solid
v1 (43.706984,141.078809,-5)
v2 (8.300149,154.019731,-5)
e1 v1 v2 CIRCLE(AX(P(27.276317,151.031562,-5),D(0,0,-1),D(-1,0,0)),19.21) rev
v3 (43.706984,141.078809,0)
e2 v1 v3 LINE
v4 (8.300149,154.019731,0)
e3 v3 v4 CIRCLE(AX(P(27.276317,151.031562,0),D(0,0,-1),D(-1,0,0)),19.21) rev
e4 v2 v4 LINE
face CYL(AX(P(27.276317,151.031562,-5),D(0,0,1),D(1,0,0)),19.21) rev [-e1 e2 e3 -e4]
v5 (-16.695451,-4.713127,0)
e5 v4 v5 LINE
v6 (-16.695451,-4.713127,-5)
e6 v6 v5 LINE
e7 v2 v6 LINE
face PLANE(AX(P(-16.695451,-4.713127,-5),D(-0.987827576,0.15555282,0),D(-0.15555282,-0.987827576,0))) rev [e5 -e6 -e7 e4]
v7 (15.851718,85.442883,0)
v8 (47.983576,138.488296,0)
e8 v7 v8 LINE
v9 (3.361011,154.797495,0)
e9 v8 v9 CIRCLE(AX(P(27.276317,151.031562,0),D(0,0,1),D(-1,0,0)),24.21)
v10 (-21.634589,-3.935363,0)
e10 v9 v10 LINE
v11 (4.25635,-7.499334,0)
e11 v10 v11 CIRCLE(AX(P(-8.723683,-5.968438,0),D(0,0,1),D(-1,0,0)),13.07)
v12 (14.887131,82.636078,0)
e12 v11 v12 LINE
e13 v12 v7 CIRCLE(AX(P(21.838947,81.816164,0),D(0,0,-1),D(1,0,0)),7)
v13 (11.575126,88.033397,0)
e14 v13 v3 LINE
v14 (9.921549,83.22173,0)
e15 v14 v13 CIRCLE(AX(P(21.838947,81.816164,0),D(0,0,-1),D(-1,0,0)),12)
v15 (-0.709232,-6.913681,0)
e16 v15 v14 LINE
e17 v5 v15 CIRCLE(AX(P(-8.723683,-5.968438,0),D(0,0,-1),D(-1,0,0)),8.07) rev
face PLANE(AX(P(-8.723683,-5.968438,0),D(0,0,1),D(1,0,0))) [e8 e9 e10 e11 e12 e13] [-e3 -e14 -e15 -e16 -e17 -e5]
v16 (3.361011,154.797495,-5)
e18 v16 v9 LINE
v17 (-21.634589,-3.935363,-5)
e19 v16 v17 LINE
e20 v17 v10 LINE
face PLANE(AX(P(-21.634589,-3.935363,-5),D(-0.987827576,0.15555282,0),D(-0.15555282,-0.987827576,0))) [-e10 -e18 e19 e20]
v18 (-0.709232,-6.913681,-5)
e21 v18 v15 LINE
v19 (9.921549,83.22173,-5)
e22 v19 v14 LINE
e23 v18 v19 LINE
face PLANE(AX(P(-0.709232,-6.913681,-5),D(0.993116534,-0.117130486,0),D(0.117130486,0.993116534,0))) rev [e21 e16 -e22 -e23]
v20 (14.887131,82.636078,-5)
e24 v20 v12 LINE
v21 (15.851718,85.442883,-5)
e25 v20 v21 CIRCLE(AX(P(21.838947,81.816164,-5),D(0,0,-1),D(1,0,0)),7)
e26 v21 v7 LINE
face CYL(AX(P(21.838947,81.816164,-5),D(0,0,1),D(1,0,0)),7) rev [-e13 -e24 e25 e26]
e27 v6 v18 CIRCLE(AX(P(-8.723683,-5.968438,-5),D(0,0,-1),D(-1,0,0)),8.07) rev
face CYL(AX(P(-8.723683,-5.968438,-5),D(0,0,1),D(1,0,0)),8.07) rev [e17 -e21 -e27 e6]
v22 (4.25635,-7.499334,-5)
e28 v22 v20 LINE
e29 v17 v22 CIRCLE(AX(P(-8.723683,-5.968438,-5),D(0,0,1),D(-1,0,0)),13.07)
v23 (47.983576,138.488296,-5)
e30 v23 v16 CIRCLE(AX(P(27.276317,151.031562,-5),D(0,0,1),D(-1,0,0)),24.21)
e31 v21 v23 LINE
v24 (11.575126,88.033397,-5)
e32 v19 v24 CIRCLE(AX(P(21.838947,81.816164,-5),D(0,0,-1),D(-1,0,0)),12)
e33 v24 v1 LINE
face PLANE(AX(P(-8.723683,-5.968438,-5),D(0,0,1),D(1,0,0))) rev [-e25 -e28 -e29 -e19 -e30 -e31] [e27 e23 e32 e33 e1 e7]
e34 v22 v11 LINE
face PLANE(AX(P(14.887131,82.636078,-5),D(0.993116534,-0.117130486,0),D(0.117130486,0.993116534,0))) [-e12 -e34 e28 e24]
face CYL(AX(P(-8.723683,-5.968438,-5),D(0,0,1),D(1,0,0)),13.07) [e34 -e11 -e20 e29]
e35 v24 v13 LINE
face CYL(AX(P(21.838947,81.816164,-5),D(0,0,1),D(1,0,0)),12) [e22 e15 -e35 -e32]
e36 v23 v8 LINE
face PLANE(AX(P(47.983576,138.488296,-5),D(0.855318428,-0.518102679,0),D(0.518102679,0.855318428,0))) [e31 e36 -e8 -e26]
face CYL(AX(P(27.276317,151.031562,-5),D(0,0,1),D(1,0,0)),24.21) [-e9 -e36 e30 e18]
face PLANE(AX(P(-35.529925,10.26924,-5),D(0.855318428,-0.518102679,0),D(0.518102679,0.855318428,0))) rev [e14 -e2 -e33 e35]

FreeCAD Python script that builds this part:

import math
import FreeCAD as App
import Part
import Sketcher
from FreeCAD import Vector

doc = App.newDocument("Part")
body = doc.addObject("PartDesign::Body", "Body")

sketch1 = body.newObject("Sketcher::SketchObject", "Sketch")
sketch1.AttachmentSupport = (doc.getObject("XY_Plane"), [""])
sketch1.MapMode = "FlatFace"
sketch1.addGeometry([
    Part.LineSegment(Vector(4.3, -7.5, 0), Vector(14.9, 82.6, 0)),
    Part.ArcOfCircle(Part.Circle(Vector(21.8, 81.8, 0), Vector(0, 0, 1), 7), math.radians(149), math.radians(173)),
    Part.LineSegment(Vector(15.9, 85.4, 0), Vector(48, 138.5, 0)),
    Part.ArcOfCircle(Part.Circle(Vector(27.3, 151, 0), Vector(0, 0, 1), 24.2), math.radians(-31), math.radians(171)),
    Part.LineSegment(Vector(3.4, 154.8, 0), Vector(-21.6, -3.9, 0)),
    Part.ArcOfCircle(Part.Circle(Vector(-8.7, -6, 0), Vector(0, 0, 1), 13.1), math.radians(171), math.radians(353)),
    Part.LineSegment(Vector(9.9, 83.2, 0), Vector(-0.7, -6.9, 0)),
    Part.ArcOfCircle(Part.Circle(Vector(-8.7, -6, 0), Vector(0, 0, 1), 8.1), math.radians(171), math.radians(353)),
    Part.LineSegment(Vector(-16.7, -4.7, 0), Vector(8.3, 154, 0)),
    Part.ArcOfCircle(Part.Circle(Vector(27.3, 151, 0), Vector(0, 0, 1), 19.2), math.radians(-31), math.radians(171)),
    Part.LineSegment(Vector(43.7, 141.1, 0), Vector(11.6, 88, 0)),
    Part.ArcOfCircle(Part.Circle(Vector(21.8, 81.8, 0), Vector(0, 0, 1), 12), math.radians(149), math.radians(173)),
], False)
sketch1.addConstraint([
    Sketcher.Constraint("Tangent", 0, 2, 1, 2),
    Sketcher.Constraint("Tangent", 1, 1, 2, 1),
    Sketcher.Constraint("Tangent", 2, 2, 3, 1),
    Sketcher.Constraint("Tangent", 3, 2, 4, 1),
    Sketcher.Constraint("Tangent", 4, 2, 5, 1),
    Sketcher.Constraint("Tangent", 5, 2, 0, 1),
    Sketcher.Constraint("Tangent", 6, 2, 7, 2),
    Sketcher.Constraint("Tangent", 7, 1, 8, 1),
    Sketcher.Constraint("Tangent", 8, 2, 9, 2),
    Sketcher.Constraint("Tangent", 9, 1, 10, 1),
    Sketcher.Constraint("Tangent", 10, 2, 11, 1),
    Sketcher.Constraint("Tangent", 11, 2, 6, 1),
    Sketcher.Constraint("Coincident", 7, 3, 5, 3),
    Sketcher.Constraint("Coincident", 9, 3, 3, 3),
    Sketcher.Constraint("Coincident", 11, 3, 1, 3),
    Sketcher.Constraint("Parallel", 0, 6),
    Sketcher.Constraint("Parallel", 4, 8),
    Sketcher.Constraint("Radius", 1, 7.0),
    Sketcher.Constraint("Radius", 11, 12.0),
    Sketcher.Constraint("Radius", 3, 24.21),
    Sketcher.Constraint("Radius", 5, 13.07),
    Sketcher.Constraint("DistanceX", 5, 3, 3, 3, 36.0),
    Sketcher.Constraint("DistanceY", 5, 3, 3, 3, 157.0),
    Sketcher.Constraint("DistanceX", 1, 1, 3, 3, 11.424599),
    Sketcher.Constraint("DistanceY", 2, 2, 3, 2, 16.3092),
    Sketcher.Constraint("DistanceY", -1, 1, 3, 3, 151.031562),
    Sketcher.Constraint("DistanceX", -1, 1, 0, 2, 14.887131),
])
pad1 = body.newObject("PartDesign::Pad", "Pad")
pad1.Profile = sketch1
pad1.Length = 5
pad1.Reversed = True

doc.recompute()
